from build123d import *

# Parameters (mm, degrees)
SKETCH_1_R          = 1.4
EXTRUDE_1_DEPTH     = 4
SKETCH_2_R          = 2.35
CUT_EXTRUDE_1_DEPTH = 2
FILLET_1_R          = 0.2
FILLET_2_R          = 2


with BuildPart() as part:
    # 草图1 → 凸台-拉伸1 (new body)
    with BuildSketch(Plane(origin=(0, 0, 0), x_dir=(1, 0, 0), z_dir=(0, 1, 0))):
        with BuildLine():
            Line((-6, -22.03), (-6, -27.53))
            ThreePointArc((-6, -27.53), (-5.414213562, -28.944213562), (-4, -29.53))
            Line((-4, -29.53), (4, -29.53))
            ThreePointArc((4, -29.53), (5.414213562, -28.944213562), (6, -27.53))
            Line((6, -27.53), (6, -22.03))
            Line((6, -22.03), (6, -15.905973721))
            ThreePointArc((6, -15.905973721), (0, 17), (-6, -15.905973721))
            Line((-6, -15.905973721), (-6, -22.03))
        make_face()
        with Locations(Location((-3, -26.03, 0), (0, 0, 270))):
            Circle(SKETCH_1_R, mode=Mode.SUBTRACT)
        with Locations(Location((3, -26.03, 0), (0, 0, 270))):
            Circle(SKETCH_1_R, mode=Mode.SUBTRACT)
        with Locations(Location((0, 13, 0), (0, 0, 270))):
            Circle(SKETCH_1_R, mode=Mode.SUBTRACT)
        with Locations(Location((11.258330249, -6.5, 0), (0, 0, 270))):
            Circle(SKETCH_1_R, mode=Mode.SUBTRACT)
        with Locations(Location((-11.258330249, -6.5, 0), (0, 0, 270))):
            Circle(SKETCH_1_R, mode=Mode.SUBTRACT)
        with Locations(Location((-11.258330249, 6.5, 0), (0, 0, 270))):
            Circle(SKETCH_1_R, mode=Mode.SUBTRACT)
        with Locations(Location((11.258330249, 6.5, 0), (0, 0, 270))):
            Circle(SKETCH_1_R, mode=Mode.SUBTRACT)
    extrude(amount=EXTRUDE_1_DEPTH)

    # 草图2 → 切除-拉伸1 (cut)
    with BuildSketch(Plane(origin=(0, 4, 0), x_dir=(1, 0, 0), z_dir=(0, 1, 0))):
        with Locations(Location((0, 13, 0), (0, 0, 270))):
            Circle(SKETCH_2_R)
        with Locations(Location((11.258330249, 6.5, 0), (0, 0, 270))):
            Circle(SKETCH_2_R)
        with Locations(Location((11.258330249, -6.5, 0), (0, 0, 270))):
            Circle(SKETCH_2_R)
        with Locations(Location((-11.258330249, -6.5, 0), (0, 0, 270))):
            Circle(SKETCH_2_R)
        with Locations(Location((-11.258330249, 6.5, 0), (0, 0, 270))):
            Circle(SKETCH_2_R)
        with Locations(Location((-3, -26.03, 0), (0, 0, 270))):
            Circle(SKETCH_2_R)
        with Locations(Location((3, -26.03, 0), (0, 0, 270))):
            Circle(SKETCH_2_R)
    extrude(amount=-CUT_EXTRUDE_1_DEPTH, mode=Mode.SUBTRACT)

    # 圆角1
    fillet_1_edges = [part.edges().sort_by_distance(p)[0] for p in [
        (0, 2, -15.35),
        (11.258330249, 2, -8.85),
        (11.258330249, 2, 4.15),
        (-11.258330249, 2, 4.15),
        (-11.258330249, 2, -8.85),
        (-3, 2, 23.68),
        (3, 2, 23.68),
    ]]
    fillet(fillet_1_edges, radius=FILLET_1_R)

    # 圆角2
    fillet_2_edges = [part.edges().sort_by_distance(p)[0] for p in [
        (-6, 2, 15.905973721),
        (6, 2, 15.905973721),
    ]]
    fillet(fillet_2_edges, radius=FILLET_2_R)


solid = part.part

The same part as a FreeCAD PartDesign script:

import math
import FreeCAD as App
import Part
import Sketcher


def edges_at(feature, points):
    """Names of the edges that pass closest to the given points."""
    edges = feature.Shape.Edges
    near = lambda p: min(range(len(edges)), key=lambda i: edges[i].distToShape(Part.Vertex(*p))[0])
    return sorted({f"Edge{near(p) + 1}" for p in points})

doc = App.newDocument("Part")
body = doc.addObject("PartDesign::Body", "Body")

sketch1 = body.newObject("Sketcher::SketchObject", "Sketch")
sketch1.AttachmentSupport = (doc.getObject("XZ_Plane"), [""])
sketch1.MapMode = "FlatFace"
sketch1.addGeometry(Part.ArcOfCircle(Part.Circle(App.Vector(-4, 27.5, 0), App.Vector(0, 0, 1), 2), math.radians(90), math.radians(180)), False)
sketch1.addGeometry(Part.LineSegment(App.Vector(-4, 29.5, 0), App.Vector(4, 29.5, 0)), False)
sketch1.addGeometry(Part.ArcOfCircle(Part.Circle(App.Vector(4, 27.5, 0), App.Vector(0, 0, 1), 2), math.radians(0), math.radians(90)), False)
sketch1.addGeometry(Part.LineSegment(App.Vector(6, 27.5, 0), App.Vector(6, 15.9, 0)), False)
sketch1.addGeometry(Part.ArcOfCircle(Part.Circle(App.Vector(0, 0, 0), App.Vector(0, 0, 1), 17), math.radians(111), math.radians(429)), False)
sketch1.addGeometry(Part.LineSegment(App.Vector(-6, 15.9, 0), App.Vector(-6, 27.5, 0)), False)
sketch1.addGeometry(Part.Circle(App.Vector(-3, 26, 0), App.Vector(0, 0, 1), 1.4), False)
sketch1.addGeometry(Part.Circle(App.Vector(3, 26, 0), App.Vector(0, 0, 1), 1.4), False)
sketch1.addGeometry(Part.Circle(App.Vector(-11.3, 6.5, 0), App.Vector(0, 0, 1), 1.4), False)
sketch1.addGeometry(Part.Circle(App.Vector(-11.3, -6.5, 0), App.Vector(0, 0, 1), 1.4), False)
sketch1.addGeometry(Part.Circle(App.Vector(0, -13, 0), App.Vector(0, 0, 1), 1.4), False)
sketch1.addGeometry(Part.Circle(App.Vector(11.3, 6.5, 0), App.Vector(0, 0, 1), 1.4), False)
sketch1.addGeometry(Part.Circle(App.Vector(11.3, -6.5, 0), App.Vector(0, 0, 1), 1.4), False)
sketch1.addConstraint(Sketcher.Constraint("Tangent", 0, 1, 1, 1))
sketch1.addConstraint(Sketcher.Constraint("Tangent", 1, 2, 2, 2))
sketch1.addConstraint(Sketcher.Constraint("Tangent", 2, 1, 3, 1))
sketch1.addConstraint(Sketcher.Constraint("Coincident", 3, 2, 4, 2))
sketch1.addConstraint(Sketcher.Constraint("Coincident", 4, 1, 5, 1))
sketch1.addConstraint(Sketcher.Constraint("Tangent", 5, 2, 0, 2))
sketch1.addConstraint(Sketcher.Constraint("Horizontal", 1))
sketch1.addConstraint(Sketcher.Constraint("Vertical", 3))
sketch1.addConstraint(Sketcher.Constraint("Vertical", 5))
sketch1.addConstraint(Sketcher.Constraint("Coincident", 4, 3, -1, 1))
sketch1.addConstraint(Sketcher.Constraint("Equal", 0, 2))
sketch1.addConstraint(Sketcher.Constraint("Equal", 6, 7))
sketch1.addConstraint(Sketcher.Constraint("Equal", 7, 8))
sketch1.addConstraint(Sketcher.Constraint("Equal", 8, 9))
sketch1.addConstraint(Sketcher.Constraint("Equal", 9, 10))
sketch1.addConstraint(Sketcher.Constraint("Equal", 10, 11))
sketch1.addConstraint(Sketcher.Constraint("Equal", 11, 12))
sketch1.addConstraint(Sketcher.Constraint("Symmetric", 9, 3, 11, 3, -1, 1))
sketch1.addConstraint(Sketcher.Constraint("Symmetric", 8, 3, 12, 3, -1, 1))
sketch1.addConstraint(Sketcher.Constraint("Symmetric", 6, 3, 7, 3, -2))
sketch1.addConstraint(Sketcher.Constraint("Symmetric", 8, 3, 11, 3, -2))
sketch1.addConstraint(Sketcher.Constraint("PointOnObject", 10, 3, -2))
sketch1.addConstraint(Sketcher.Constraint("Horizontal", 3, 2, 4, 1))
sketch1.addConstraint(Sketcher.Constraint("Radius", 0, 2.0))
sketch1.addConstraint(Sketcher.Constraint("Radius", 4, 17.0))
sketch1.addConstraint(Sketcher.Constraint("Diameter", 6, 2.8))
sketch1.addConstraint(Sketcher.Constraint("DistanceX", 1, 1, 1, 2, 8.0))
sketch1.addConstraint(Sketcher.Constraint("DistanceX", 6, 3, -1, 1, 3.0))
sketch1.addConstraint(Sketcher.Constraint("DistanceY", 10, 3, -1, 1, 13.0))
sketch1.addConstraint(Sketcher.Constraint("DistanceY", 9, 3, 8, 3, 13.0))
sketch1.addConstraint(Sketcher.Constraint("DistanceY", 6, 3, 0, 3, 1.5))
sketch1.addConstraint(Sketcher.Constraint("DistanceY", -1, 1, 0, 3, 27.53))
sketch1.addConstraint(Sketcher.Constraint("DistanceX", 8, 3, -1, 1, 11.25833))
pad1 = body.newObject("PartDesign::Pad", "Pad")
pad1.Profile = sketch1
pad1.Length = 4
pad1.Reversed = True

sketch2 = body.newObject("Sketcher::SketchObject", "Sketch001")
sketch2.AttachmentSupport = (doc.getObject("XZ_Plane"), [""])
sketch2.MapMode = "FlatFace"
sketch2.AttachmentOffset = App.Placement(App.Vector(0, 0, -4), App.Rotation())
sketch2.addGeometry(Part.Circle(App.Vector(0, -13, 0), App.Vector(0, 0, 1), 2.4), False)
sketch2.addGeometry(Part.Circle(App.Vector(11.3, -6.5, 0), App.Vector(0, 0, 1), 2.4), False)
sketch2.addGeometry(Part.Circle(App.Vector(11.3, 6.5, 0), App.Vector(0, 0, 1), 2.4), False)
sketch2.addGeometry(Part.Circle(App.Vector(-11.3, 6.5, 0), App.Vector(0, 0, 1), 2.4), False)
sketch2.addGeometry(Part.Circle(App.Vector(-11.3, -6.5, 0), App.Vector(0, 0, 1), 2.4), False)
sketch2.addGeometry(Part.Circle(App.Vector(-3, 26, 0), App.Vector(0, 0, 1), 2.4), False)
sketch2.addGeometry(Part.Circle(App.Vector(3, 26, 0), App.Vector(0, 0, 1), 2.4), False)
sketch2.addConstraint(Sketcher.Constraint("Equal", 0, 1))
sketch2.addConstraint(Sketcher.Constraint("Equal", 1, 2))
sketch2.addConstraint(Sketcher.Constraint("Equal", 2, 3))
sketch2.addConstraint(Sketcher.Constraint("Equal", 3, 4))
sketch2.addConstraint(Sketcher.Constraint("Equal", 4, 5))
sketch2.addConstraint(Sketcher.Constraint("Equal", 5, 6))
sketch2.addConstraint(Sketcher.Constraint("Symmetric", 1, 3, 3, 3, -1, 1))
sketch2.addConstraint(Sketcher.Constraint("Symmetric", 2, 3, 4, 3, -1, 1))
sketch2.addConstraint(Sketcher.Constraint("Symmetric", 2, 3, 3, 3, -2))
sketch2.addConstraint(Sketcher.Constraint("Symmetric", 5, 3, 6, 3, -2))
sketch2.addConstraint(Sketcher.Constraint("PointOnObject", 0, 3, -2))
sketch2.addConstraint(Sketcher.Constraint("Diameter", 0, 4.7))
sketch2.addConstraint(Sketcher.Constraint("DistanceY", 0, 3, -1, 1, 13.0))
sketch2.addConstraint(Sketcher.Constraint("DistanceX", 5, 3, -1, 1, 3.0))
sketch2.addConstraint(Sketcher.Constraint("DistanceY", 1, 3, 2, 3, 13.0))
sketch2.addConstraint(Sketcher.Constraint("DistanceY", -1, 1, 5, 3, 26.03))
sketch2.addConstraint(Sketcher.Constraint("DistanceX", -1, 1, 1, 3, 11.25833))
pocket1 = body.newObject("PartDesign::Pocket", "Pocket")
pocket1.Profile = sketch2
pocket1.Length = 2
pocket1.Reversed = True
doc.recompute()

fillet = body.newObject("PartDesign::Fillet", "Fillet")
fillet.Base = (pocket1, edges_at(pocket1, [
    (0, 2, -15.35),
    (11.258, 2, -8.85),
    (11.258, 2, 4.15),
    (-11.258, 2, 4.15),
    (-11.258, 2, -8.85),
    (-3, 2, 23.68),
    (3, 2, 23.68),
]))
fillet.Radius = 0.2
doc.recompute()

fillet2 = body.newObject("PartDesign::Fillet", "Fillet001")
fillet2.Base = (fillet, edges_at(fillet, [(-6, 2, 15.906), (6, 2, 15.906)]))
fillet2.Radius = 2

doc.recompute()
